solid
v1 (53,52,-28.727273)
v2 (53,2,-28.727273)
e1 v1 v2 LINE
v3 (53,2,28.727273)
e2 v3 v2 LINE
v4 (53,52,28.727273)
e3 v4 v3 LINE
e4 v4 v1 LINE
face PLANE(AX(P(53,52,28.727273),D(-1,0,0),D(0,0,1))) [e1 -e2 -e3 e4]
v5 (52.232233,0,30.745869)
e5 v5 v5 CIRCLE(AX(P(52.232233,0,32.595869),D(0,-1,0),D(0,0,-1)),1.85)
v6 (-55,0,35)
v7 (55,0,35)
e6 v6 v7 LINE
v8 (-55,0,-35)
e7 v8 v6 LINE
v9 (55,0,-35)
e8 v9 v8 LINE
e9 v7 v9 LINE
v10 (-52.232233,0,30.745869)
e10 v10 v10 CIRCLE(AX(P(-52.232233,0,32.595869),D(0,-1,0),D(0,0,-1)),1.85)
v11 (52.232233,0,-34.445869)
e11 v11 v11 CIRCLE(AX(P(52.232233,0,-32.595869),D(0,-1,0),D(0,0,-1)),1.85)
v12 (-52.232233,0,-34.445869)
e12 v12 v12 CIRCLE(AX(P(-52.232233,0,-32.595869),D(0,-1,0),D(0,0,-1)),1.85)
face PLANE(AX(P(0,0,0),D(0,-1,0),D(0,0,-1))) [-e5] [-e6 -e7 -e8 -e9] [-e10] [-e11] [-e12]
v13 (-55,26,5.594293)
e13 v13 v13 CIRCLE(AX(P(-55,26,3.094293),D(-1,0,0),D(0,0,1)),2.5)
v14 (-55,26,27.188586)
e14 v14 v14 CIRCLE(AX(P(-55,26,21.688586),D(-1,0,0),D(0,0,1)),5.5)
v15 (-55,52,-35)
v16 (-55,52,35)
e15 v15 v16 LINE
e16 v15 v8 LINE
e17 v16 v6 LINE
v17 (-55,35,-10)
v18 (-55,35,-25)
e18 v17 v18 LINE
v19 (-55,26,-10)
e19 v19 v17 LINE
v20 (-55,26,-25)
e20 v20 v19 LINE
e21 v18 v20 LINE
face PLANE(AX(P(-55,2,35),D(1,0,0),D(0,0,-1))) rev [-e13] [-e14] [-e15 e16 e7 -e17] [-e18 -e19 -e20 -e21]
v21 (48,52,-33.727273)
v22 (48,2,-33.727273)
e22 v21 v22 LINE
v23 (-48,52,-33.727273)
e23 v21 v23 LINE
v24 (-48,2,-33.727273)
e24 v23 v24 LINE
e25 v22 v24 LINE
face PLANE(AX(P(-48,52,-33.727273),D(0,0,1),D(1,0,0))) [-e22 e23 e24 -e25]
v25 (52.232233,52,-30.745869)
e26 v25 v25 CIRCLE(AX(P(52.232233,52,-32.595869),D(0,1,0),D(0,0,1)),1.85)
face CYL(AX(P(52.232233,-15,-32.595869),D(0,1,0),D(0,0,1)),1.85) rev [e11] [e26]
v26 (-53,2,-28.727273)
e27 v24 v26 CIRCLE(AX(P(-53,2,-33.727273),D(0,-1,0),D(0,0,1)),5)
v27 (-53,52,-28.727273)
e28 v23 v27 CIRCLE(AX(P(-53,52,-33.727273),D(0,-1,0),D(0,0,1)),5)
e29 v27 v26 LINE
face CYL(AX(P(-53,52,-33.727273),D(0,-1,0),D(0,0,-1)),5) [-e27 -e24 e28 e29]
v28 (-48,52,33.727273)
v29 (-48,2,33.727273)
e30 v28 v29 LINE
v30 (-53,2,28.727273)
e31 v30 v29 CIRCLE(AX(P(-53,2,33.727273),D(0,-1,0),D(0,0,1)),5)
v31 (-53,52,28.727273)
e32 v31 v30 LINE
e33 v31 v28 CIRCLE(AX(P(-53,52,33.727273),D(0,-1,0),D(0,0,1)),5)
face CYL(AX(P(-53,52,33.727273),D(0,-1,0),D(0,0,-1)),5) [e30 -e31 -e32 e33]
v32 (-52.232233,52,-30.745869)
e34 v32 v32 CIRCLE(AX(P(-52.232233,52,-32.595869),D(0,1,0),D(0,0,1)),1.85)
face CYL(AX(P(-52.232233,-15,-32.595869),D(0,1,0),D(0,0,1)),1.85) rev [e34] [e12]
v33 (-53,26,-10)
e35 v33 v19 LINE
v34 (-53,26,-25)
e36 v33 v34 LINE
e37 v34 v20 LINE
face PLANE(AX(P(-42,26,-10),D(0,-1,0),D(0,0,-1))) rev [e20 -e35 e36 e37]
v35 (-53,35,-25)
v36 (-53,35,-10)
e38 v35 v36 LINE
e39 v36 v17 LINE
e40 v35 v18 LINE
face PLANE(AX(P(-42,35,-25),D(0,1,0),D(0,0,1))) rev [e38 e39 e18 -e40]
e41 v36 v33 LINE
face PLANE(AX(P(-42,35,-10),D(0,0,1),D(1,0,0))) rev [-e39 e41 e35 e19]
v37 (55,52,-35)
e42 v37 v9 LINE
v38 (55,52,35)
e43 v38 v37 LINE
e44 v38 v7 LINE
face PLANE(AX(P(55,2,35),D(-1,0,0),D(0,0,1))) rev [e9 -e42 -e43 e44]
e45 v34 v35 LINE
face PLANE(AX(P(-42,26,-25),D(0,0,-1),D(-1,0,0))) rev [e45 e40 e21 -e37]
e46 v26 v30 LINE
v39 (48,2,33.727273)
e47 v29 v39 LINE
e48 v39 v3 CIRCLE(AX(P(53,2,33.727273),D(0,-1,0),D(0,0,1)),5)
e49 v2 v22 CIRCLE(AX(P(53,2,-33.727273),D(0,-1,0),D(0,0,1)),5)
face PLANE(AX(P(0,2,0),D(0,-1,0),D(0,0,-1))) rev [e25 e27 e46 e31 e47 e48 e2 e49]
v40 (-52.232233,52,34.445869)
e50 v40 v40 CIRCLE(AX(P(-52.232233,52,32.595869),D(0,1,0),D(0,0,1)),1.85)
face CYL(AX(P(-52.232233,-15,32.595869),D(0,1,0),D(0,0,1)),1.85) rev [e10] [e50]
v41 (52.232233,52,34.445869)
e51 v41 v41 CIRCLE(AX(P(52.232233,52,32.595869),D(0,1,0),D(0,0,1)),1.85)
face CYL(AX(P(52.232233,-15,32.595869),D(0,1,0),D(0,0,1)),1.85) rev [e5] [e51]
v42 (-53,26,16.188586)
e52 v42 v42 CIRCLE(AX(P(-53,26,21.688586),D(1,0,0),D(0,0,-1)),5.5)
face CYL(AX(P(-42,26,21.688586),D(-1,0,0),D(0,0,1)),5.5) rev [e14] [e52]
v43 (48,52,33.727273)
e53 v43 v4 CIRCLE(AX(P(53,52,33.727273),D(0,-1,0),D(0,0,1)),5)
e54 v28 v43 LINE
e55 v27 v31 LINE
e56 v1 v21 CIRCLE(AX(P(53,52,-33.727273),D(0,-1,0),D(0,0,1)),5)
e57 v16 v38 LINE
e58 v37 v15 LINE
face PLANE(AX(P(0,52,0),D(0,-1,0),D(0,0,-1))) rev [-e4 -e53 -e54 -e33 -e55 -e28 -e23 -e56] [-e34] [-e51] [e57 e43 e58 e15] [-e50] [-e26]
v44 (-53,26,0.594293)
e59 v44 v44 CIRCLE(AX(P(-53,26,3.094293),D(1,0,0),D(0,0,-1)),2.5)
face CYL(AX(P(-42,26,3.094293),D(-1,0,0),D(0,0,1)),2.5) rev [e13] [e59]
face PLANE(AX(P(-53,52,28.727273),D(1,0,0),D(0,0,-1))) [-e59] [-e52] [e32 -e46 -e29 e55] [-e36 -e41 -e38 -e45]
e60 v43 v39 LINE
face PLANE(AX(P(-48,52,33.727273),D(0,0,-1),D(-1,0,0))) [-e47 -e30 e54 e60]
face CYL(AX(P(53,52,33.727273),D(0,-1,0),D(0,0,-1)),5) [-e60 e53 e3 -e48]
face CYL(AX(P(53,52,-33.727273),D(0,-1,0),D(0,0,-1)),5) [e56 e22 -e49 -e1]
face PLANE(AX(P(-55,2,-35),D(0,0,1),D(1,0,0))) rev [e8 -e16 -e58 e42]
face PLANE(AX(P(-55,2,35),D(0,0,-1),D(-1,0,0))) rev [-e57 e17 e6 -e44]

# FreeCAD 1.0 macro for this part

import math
import FreeCAD as App
import Part
import Sketcher
from FreeCAD import Vector
Q = App.Units.Quantity


def add_polygon(sketch, points):
    """Adds a closed chain of lines whose ends are joined by coincident constraints."""
    first, n = sketch.GeometryCount, len(points)
    for a, b in zip(points, points[1:] + points[:1]):
        sketch.addGeometry(Part.LineSegment(App.Vector(*a, 0), App.Vector(*b, 0)), False)
    for i in range(n):
        sketch.addConstraint(Sketcher.Constraint("Coincident", first + i, 2, first + (i + 1) % n, 1))

doc = App.newDocument("Part")
body = doc.addObject("PartDesign::Body", "Body")

# Sketch on XZ plane
sketch1 = doc.addObject("Sketcher::SketchObject", "Sketch")
body.addObject(sketch1)
sketch1.AttachmentSupport = (doc.XZ_Plane, [""])
sketch1.MapMode = "FlatFace"
add_polygon(sketch1, [(-55, -35), (-55, 35), (55, 35), (55, -35)])  # lines 0-3
sketch1.addConstraint(Sketcher.Constraint("Vertical", 0))
sketch1.addConstraint(Sketcher.Constraint("Horizontal", 1))
sketch1.addConstraint(Sketcher.Constraint("Vertical", 2))
sketch1.addConstraint(Sketcher.Constraint("Horizontal", 3))
sketch1.addConstraint(Sketcher.Constraint("Symmetric", 0, 2, 2, 2, -1, 1))
sketch1.addConstraint(Sketcher.Constraint("DistanceX", 1, 1, 1, 2, Q("110 mm")))
sketch1.addConstraint(Sketcher.Constraint("DistanceY", 0, 1, 0, 2, Q("70 mm")))
pad1 = doc.addObject("PartDesign::Pad", "Pad")
body.addObject(pad1)
pad1.Profile = sketch1
pad1.Length = 2
pad1.Reversed = True

# Sketch on XZ plane
sketch2 = doc.addObject("Sketcher::SketchObject", "Sketch001")
body.addObject(sketch2)
sketch2.AttachmentSupport = (doc.XZ_Plane, [""])
sketch2.MapMode = "FlatFace"
sketch2.AttachmentOffset = App.Placement(Vector(0, 0, -2), App.Rotation())
add_polygon(sketch2, [(-55, -35), (-55, 35), (55, 35), (55, -35)])  # lines 0-3
sketch2.addGeometry(Part.LineSegment(Vector(48, 34, 0), Vector(-48, 34, 0)), False)  # 4
sketch2.addGeometry(Part.ArcOfCircle(Part.Circle(Vector(-53, 34, 0), Vector(0, 0, 1), 5), math.radians(-90), math.radians(0)), False)  # 5
sketch2.addGeometry(Part.LineSegment(Vector(-53, 29, 0), Vector(-53, -29, 0)), False)  # 6
sketch2.addGeometry(Part.ArcOfCircle(Part.Circle(Vector(-53, -34, 0), Vector(0, 0, 1), 5), math.radians(0), math.radians(90)), False)  # 7
sketch2.addGeometry(Part.LineSegment(Vector(-48, -34, 0), Vector(48, -34, 0)), False)  # 8
sketch2.addGeometry(Part.ArcOfCircle(Part.Circle(Vector(53, -34, 0), Vector(0, 0, 1), 5), math.radians(90), math.radians(180)), False)  # 9
sketch2.addGeometry(Part.LineSegment(Vector(53, -29, 0), Vector(53, 29, 0)), False)  # 10
sketch2.addGeometry(Part.ArcOfCircle(Part.Circle(Vector(53, 34, 0), Vector(0, 0, 1), 5), math.radians(180), math.radians(270)), False)  # 11
sketch2.addConstraint(Sketcher.Constraint("Coincident", 4, 2, 5, 2))
sketch2.addConstraint(Sketcher.Constraint("Coincident", 5, 1, 6, 1))
sketch2.addConstraint(Sketcher.Constraint("Coincident", 6, 2, 7, 2))
sketch2.addConstraint(Sketcher.Constraint("Coincident", 7, 1, 8, 1))
sketch2.addConstraint(Sketcher.Constraint("Coincident", 8, 2, 9, 2))
sketch2.addConstraint(Sketcher.Constraint("Coincident", 9, 1, 10, 1))
sketch2.addConstraint(Sketcher.Constraint("Coincident", 10, 2, 11, 2))
sketch2.addConstraint(Sketcher.Constraint("Coincident", 11, 1, 4, 1))
sketch2.addConstraint(Sketcher.Constraint("Vertical", 0))
sketch2.addConstraint(Sketcher.Constraint("Horizontal", 1))
sketch2.addConstraint(Sketcher.Constraint("Vertical", 2))
sketch2.addConstraint(Sketcher.Constraint("Horizontal", 3))
sketch2.addConstraint(Sketcher.Constraint("Horizontal", 4))
sketch2.addConstraint(Sketcher.Constraint("Vertical", 6))
sketch2.addConstraint(Sketcher.Constraint("Horizontal", 8))
sketch2.addConstraint(Sketcher.Constraint("Vertical", 10))
sketch2.addConstraint(Sketcher.Constraint("Equal", 5, 7))
sketch2.addConstraint(Sketcher.Constraint("Equal", 7, 9))
sketch2.addConstraint(Sketcher.Constraint("Equal", 9, 11))
sketch2.addConstraint(Sketcher.Constraint("Symmetric", 5, 3, 9, 3, -1, 1))
sketch2.addConstraint(Sketcher.Constraint("Symmetric", 7, 3, 11, 3, -1, 1))
sketch2.addConstraint(Sketcher.Constraint("Symmetric", 0, 2, 2, 2, -1, 1))
sketch2.addConstraint(Sketcher.Constraint("Symmetric", 7, 3, 9, 3, -2))
sketch2.addConstraint(Sketcher.Constraint("Horizontal", 11, 3, 4, 2))
sketch2.addConstraint(Sketcher.Constraint("Horizontal", 9, 3, 7, 1))
sketch2.addConstraint(Sketcher.Constraint("Vertical", 7, 3, 5, 1))
sketch2.addConstraint(Sketcher.Constraint("Vertical", 11, 3, 9, 1))
sketch2.addConstraint(Sketcher.Constraint("Radius", 5, Q("5 mm")))
sketch2.addConstraint(Sketcher.Constraint("DistanceX", 1, 1, 1, 2, Q("110 mm")))
sketch2.addConstraint(Sketcher.Constraint("DistanceX", 4, 2, 4, 1, Q("96 mm")))
sketch2.addConstraint(Sketcher.Constraint("DistanceY", 0, 1, 0, 2, Q("70 mm")))
sketch2.addConstraint(Sketcher.Constraint("DistanceY", 6, 2, 6, 1, Q("57.454545 mm")))
pad2 = doc.addObject("PartDesign::Pad", "Pad001")
body.addObject(pad2)
pad2.Profile = sketch2
pad2.Length = 50
pad2.Reversed = True

# Sketch on YZ plane
sketch3 = doc.addObject("Sketcher::SketchObject", "Sketch002")
body.addObject(sketch3)
sketch3.AttachmentSupport = (doc.YZ_Plane, [""])
sketch3.MapMode = "FlatFace"
sketch3.AttachmentOffset = App.Placement(Vector(0, 0, -55), App.Rotation())
sketch3.addGeometry(Part.Circle(Vector(26, 22, 0), Vector(0, 0, 1), 6), False)
sketch3.addConstraint(Sketcher.Constraint("Diameter", 0, Q("11 mm")))
sketch3.addConstraint(Sketcher.Constraint("DistanceX", -1, 1, 0, 3, Q("26 mm")))
sketch3.addConstraint(Sketcher.Constraint("DistanceY", -1, 1, 0, 3, Q("21.688586 mm")))
pocket1 = doc.addObject("PartDesign::Pocket", "Pocket")
body.addObject(pocket1)
pocket1.Profile = sketch3
pocket1.Length = 13
pocket1.Reversed = True

# Sketch on YZ plane
sketch4 = doc.addObject("Sketcher::SketchObject", "Sketch003")
body.addObject(sketch4)
sketch4.AttachmentSupport = (doc.YZ_Plane, [""])
sketch4.MapMode = "FlatFace"
sketch4.AttachmentOffset = App.Placement(Vector(0, 0, -55), App.Rotation())
sketch4.addGeometry(Part.Circle(Vector(26, 3.1, 0), Vector(0, 0, 1), 2.5), False)  # 0
add_polygon(sketch4, [(35, -25), (26, -25), (26, -10), (35, -10)])  # lines 1-4
sketch4.addConstraint(Sketcher.Constraint("Horizontal", 1))
sketch4.addConstraint(Sketcher.Constraint("Vertical", 2))
sketch4.addConstraint(Sketcher.Constraint("Horizontal", 3))
sketch4.addConstraint(Sketcher.Constraint("Vertical", 4))
sketch4.addConstraint(Sketcher.Constraint("Vertical", 0, 3, 1, 2))
sketch4.addConstraint(Sketcher.Constraint("Diameter", 0, Q("5 mm")))
sketch4.addConstraint(Sketcher.Constraint("DistanceX", 1, 2, 1, 1, Q("9 mm")))
sketch4.addConstraint(Sketcher.Constraint("DistanceY", 2, 1, 2, 2, Q("15 mm")))
sketch4.addConstraint(Sketcher.Constraint("DistanceX", -1, 1, 0, 3, Q("26 mm")))
sketch4.addConstraint(Sketcher.Constraint("DistanceY", 1, 2, -1, 1, Q("25 mm")))
sketch4.addConstraint(Sketcher.Constraint("DistanceY", -1, 1, 0, 3, Q("3.094293 mm")))
pocket2 = doc.addObject("PartDesign::Pocket", "Pocket001")
body.addObject(pocket2)
pocket2.Profile = sketch4
pocket2.Length = 13
pocket2.Reversed = True

# Sketch on XZ plane
sketch5 = doc.addObject("Sketcher::SketchObject", "Sketch004")
body.addObject(sketch5)
sketch5.AttachmentSupport = (doc.XZ_Plane, [""])
sketch5.MapMode = "FlatFace"
sketch5.AttachmentOffset = App.Placement(Vector(0, 0, -52), App.Rotation())
sketch5.addGeometry(Part.Circle(Vector(-52.2, -32.6, 0), Vector(0, 0, 1), 1.9), False)
sketch5.addGeometry(Part.Circle(Vector(52.2, -32.6, 0), Vector(0, 0, 1), 1.9), False)
sketch5.addGeometry(Part.Circle(Vector(52.2, 32.6, 0), Vector(0, 0, 1), 1.9), False)
sketch5.addGeometry(Part.Circle(Vector(-52.2, 32.6, 0), Vector(0, 0, 1), 1.9), False)
sketch5.addConstraint(Sketcher.Constraint("Equal", 0, 1))
sketch5.addConstraint(Sketcher.Constraint("Equal", 1, 2))
sketch5.addConstraint(Sketcher.Constraint("Equal", 2, 3))
sketch5.addConstraint(Sketcher.Constraint("Symmetric", 0, 3, 2, 3, -1, 1))
sketch5.addConstraint(Sketcher.Constraint("Symmetric", 1, 3, 3, 3, -1, 1))
sketch5.addConstraint(Sketcher.Constraint("Symmetric", 0, 3, 1, 3, -2))
sketch5.addConstraint(Sketcher.Constraint("Diameter", 0, Q("3.7 mm")))
sketch5.addConstraint(Sketcher.Constraint("DistanceY", 0, 3, -1, 1, Q("32.595869 mm")))
sketch5.addConstraint(Sketcher.Constraint("DistanceX", 0, 3, -1, 1, Q("52.232233 mm")))
pocket3 = doc.addObject("PartDesign::Pocket", "Pocket002")
body.addObject(pocket3)
pocket3.Profile = sketch5
pocket3.Length = 67
pocket3.Reversed = True

doc.recompute()
